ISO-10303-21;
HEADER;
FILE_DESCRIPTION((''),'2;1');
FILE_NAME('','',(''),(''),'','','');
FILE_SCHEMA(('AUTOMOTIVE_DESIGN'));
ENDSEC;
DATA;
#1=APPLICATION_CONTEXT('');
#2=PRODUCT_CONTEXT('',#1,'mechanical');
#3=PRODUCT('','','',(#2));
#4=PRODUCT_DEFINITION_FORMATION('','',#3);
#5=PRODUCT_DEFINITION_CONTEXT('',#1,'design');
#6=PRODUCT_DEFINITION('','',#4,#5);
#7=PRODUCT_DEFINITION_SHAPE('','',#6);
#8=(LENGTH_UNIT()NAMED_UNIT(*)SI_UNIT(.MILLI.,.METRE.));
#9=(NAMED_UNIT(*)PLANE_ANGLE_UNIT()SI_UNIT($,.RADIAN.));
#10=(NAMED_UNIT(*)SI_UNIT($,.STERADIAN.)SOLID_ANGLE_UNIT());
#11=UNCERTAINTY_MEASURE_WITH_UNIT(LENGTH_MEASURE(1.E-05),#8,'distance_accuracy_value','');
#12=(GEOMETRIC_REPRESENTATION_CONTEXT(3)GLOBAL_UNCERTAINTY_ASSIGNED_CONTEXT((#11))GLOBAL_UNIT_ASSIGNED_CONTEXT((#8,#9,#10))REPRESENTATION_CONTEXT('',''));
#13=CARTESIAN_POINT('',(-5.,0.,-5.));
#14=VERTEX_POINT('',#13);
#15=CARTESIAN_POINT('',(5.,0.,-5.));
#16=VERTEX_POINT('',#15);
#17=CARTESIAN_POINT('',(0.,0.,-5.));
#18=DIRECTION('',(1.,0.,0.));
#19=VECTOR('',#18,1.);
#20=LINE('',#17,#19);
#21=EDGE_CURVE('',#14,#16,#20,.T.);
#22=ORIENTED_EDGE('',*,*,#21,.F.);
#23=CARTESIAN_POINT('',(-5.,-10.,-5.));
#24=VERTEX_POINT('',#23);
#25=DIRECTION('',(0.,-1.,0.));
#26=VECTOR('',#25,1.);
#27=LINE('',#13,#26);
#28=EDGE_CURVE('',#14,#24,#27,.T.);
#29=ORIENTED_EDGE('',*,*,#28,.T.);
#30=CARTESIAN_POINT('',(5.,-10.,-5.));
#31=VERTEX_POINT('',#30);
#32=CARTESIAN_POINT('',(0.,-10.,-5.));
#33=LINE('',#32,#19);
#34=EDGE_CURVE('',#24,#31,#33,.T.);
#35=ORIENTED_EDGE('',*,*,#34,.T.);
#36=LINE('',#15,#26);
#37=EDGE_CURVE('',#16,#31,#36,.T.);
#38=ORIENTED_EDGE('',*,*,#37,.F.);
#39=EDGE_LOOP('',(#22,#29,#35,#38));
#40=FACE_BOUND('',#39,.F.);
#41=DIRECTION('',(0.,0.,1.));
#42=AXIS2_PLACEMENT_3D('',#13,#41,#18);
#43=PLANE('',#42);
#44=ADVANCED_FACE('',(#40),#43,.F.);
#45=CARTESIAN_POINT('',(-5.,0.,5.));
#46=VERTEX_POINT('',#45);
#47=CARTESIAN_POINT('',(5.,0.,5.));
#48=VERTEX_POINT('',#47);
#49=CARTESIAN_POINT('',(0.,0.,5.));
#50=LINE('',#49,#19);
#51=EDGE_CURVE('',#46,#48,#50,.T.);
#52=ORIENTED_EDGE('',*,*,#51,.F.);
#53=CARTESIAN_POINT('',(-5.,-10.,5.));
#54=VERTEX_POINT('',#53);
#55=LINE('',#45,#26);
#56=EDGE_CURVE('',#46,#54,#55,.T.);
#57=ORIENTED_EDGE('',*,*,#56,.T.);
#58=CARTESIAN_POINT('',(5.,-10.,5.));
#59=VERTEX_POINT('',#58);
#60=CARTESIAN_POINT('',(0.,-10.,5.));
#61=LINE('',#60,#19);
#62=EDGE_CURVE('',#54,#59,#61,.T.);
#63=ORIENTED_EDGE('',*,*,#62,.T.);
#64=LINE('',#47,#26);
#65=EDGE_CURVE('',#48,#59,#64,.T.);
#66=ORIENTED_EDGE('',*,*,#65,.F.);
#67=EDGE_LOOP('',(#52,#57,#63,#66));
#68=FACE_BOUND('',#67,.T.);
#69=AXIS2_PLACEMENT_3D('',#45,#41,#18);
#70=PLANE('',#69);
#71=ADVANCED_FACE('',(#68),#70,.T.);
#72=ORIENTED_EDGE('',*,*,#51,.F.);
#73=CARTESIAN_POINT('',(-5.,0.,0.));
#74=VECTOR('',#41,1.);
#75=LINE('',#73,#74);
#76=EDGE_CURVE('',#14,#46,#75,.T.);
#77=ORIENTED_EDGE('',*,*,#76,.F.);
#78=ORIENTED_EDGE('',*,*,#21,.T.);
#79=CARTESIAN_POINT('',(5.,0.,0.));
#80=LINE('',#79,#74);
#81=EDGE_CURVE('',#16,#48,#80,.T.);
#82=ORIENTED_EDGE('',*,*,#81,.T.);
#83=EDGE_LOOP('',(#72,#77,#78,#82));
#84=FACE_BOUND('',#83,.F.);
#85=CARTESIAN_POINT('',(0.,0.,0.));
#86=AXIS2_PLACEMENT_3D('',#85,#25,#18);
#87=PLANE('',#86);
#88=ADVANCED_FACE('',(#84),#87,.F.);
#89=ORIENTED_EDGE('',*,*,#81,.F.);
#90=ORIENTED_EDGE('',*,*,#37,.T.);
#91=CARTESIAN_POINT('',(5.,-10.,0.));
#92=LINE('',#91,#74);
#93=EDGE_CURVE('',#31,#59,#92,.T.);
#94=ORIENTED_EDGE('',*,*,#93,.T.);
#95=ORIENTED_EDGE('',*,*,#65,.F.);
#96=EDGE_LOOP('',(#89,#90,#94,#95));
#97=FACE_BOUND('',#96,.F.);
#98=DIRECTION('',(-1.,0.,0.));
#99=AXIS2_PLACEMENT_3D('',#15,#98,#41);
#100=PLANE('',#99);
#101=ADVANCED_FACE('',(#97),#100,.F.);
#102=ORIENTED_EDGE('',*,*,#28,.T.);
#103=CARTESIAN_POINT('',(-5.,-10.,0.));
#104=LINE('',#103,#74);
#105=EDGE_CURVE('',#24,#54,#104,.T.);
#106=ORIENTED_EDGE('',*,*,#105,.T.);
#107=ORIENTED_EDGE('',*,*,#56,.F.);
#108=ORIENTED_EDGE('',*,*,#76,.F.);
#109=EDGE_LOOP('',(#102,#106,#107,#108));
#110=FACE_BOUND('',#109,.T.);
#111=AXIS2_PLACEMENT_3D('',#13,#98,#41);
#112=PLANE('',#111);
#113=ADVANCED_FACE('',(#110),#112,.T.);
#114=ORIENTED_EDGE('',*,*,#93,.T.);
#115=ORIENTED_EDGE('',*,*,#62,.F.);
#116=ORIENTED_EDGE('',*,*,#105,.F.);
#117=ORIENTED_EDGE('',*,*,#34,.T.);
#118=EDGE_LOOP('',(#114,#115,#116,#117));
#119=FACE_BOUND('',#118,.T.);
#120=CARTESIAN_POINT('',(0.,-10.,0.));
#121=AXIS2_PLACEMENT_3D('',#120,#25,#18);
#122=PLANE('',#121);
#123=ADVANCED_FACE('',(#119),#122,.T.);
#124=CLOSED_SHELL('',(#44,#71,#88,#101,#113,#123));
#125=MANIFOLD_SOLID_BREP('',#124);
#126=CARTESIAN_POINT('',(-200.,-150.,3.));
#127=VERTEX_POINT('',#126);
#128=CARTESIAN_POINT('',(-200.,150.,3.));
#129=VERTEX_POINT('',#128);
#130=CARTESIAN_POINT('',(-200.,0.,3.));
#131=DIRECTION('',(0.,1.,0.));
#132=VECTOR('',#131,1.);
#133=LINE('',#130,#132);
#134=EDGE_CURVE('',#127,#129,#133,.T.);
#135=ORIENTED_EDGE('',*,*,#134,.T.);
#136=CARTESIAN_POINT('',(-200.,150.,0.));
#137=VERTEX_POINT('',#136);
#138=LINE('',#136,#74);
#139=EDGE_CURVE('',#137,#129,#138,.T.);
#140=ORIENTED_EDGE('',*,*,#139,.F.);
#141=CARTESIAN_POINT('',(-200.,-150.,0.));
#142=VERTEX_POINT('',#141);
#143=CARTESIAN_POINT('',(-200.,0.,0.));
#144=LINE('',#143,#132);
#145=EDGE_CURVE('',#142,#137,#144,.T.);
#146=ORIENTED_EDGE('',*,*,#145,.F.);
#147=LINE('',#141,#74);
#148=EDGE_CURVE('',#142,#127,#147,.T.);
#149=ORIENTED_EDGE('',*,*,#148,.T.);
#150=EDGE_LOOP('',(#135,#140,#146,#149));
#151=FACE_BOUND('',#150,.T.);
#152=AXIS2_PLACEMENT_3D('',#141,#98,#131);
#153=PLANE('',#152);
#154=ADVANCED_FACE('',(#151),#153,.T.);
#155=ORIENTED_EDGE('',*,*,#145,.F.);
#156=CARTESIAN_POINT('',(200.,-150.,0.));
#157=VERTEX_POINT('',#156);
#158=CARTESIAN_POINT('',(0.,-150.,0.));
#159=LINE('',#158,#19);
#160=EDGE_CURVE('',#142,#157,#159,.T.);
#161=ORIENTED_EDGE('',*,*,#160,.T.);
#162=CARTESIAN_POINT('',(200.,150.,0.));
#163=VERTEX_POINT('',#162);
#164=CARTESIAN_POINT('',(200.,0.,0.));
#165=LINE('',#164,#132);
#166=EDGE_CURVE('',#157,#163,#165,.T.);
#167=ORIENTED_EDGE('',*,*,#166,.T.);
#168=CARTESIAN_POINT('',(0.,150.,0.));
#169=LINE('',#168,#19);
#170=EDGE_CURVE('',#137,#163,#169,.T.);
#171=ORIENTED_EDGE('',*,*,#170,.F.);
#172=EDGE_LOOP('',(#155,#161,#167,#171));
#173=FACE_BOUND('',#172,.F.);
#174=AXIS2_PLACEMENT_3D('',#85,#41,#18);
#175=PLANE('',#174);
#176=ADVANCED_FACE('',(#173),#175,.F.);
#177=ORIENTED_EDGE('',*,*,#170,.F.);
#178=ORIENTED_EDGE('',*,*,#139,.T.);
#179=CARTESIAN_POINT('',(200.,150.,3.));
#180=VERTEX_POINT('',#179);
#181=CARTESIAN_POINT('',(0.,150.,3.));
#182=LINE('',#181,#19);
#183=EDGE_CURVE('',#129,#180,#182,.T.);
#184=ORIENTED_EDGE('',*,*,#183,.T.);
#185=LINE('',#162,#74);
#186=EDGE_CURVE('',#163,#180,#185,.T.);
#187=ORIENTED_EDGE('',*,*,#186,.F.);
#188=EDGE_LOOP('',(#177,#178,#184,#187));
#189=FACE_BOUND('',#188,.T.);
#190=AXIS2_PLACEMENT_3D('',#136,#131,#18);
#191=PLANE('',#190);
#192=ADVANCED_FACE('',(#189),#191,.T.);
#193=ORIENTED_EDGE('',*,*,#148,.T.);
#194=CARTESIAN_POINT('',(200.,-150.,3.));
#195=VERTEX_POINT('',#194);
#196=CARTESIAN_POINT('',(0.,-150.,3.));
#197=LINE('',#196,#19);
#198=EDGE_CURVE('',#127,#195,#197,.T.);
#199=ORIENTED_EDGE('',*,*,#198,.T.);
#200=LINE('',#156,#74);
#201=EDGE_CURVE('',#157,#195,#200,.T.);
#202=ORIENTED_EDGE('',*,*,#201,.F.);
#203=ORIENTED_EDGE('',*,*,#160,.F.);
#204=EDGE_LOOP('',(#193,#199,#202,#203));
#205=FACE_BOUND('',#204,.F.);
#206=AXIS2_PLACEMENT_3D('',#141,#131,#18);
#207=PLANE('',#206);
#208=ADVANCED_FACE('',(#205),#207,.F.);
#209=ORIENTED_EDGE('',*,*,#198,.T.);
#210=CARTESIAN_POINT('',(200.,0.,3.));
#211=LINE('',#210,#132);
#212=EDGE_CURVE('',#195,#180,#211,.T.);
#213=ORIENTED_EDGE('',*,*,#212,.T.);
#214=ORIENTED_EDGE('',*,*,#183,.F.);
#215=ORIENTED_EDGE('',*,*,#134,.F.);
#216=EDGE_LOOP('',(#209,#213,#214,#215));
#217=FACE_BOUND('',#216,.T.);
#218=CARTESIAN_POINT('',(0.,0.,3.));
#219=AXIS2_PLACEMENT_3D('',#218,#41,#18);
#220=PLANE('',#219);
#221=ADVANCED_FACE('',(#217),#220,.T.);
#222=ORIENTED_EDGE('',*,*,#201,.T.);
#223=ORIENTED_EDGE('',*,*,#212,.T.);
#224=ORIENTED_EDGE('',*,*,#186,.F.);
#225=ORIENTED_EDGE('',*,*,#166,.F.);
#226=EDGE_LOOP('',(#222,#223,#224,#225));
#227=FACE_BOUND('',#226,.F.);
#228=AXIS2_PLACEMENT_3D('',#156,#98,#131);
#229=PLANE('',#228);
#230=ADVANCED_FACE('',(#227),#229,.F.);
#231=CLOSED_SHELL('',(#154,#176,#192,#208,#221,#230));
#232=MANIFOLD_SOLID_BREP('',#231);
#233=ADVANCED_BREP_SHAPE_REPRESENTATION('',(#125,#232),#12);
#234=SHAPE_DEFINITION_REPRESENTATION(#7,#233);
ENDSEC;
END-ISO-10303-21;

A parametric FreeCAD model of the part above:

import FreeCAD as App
import Part
import Sketcher
from FreeCAD import Vector

doc = App.newDocument("Part")
body = doc.addObject("PartDesign::Body", "Body")

# Sketch on XY plane
sketch1 = body.newObject("Sketcher::SketchObject", "Sketch")
sketch1.AttachmentSupport = (doc.getObject("XY_Plane"), [""])
sketch1.MapMode = "FlatFace"
sketch1.addGeometry([
    Part.LineSegment(Vector(-200, 150, 0), Vector(-200, -150, 0)),
    Part.LineSegment(Vector(-200, -150, 0), Vector(200, -150, 0)),
    Part.LineSegment(Vector(200, -150, 0), Vector(200, 150, 0)),
    Part.LineSegment(Vector(200, 150, 0), Vector(-200, 150, 0)),
], False)
sketch1.addConstraint([
    Sketcher.Constraint("Coincident", 0, 2, 1, 1),
    Sketcher.Constraint("Coincident", 1, 2, 2, 1),
    Sketcher.Constraint("Coincident", 2, 2, 3, 1),
    Sketcher.Constraint("Coincident", 3, 2, 0, 1),
    Sketcher.Constraint("Vertical", 0),
    Sketcher.Constraint("Horizontal", 1),
    Sketcher.Constraint("Vertical", 2),
    Sketcher.Constraint("Horizontal", 3),
    Sketcher.Constraint("Symmetric", 0, 2, 2, 2, -1, 1),
    Sketcher.Constraint("DistanceX", 1, 1, 1, 2, 400.0),
    Sketcher.Constraint("DistanceY", 0, 2, 0, 1, 300.0),
])
pad1 = body.newObject("PartDesign::Pad", "Pad")
pad1.Profile = sketch1
pad1.Length = 3
body2 = doc.addObject("PartDesign::Body", "Body001")

# Sketch on XZ plane
sketch2 = body2.newObject("Sketcher::SketchObject", "Sketch001")
sketch2.AttachmentSupport = (doc.getObject("XZ_Plane001"), [""])
sketch2.MapMode = "FlatFace"
sketch2.addGeometry([
    Part.LineSegment(Vector(-5, 5, 0), Vector(-5, -5, 0)),
    Part.LineSegment(Vector(-5, -5, 0), Vector(5, -5, 0)),
    Part.LineSegment(Vector(5, -5, 0), Vector(5, 5, 0)),
    Part.LineSegment(Vector(5, 5, 0), Vector(-5, 5, 0)),
], False)
sketch2.addConstraint([
    Sketcher.Constraint("Coincident", 0, 2, 1, 1),
    Sketcher.Constraint("Coincident", 1, 2, 2, 1),
    Sketcher.Constraint("Coincident", 2, 2, 3, 1),
    Sketcher.Constraint("Coincident", 3, 2, 0, 1),
    Sketcher.Constraint("Vertical", 0),
    Sketcher.Constraint("Horizontal", 1),
    Sketcher.Constraint("Vertical", 2),
    Sketcher.Constraint("Horizontal", 3),
    Sketcher.Constraint("Symmetric", 0, 2, 2, 2, -1, 1),
    Sketcher.Constraint("Equal", 3, 0),
    Sketcher.Constraint("DistanceX", 1, 1, 1, 2, 10.0),
])
pad2 = body2.newObject("PartDesign::Pad", "Pad001")
pad2.Profile = sketch2
pad2.Length = 10

doc.recompute()
